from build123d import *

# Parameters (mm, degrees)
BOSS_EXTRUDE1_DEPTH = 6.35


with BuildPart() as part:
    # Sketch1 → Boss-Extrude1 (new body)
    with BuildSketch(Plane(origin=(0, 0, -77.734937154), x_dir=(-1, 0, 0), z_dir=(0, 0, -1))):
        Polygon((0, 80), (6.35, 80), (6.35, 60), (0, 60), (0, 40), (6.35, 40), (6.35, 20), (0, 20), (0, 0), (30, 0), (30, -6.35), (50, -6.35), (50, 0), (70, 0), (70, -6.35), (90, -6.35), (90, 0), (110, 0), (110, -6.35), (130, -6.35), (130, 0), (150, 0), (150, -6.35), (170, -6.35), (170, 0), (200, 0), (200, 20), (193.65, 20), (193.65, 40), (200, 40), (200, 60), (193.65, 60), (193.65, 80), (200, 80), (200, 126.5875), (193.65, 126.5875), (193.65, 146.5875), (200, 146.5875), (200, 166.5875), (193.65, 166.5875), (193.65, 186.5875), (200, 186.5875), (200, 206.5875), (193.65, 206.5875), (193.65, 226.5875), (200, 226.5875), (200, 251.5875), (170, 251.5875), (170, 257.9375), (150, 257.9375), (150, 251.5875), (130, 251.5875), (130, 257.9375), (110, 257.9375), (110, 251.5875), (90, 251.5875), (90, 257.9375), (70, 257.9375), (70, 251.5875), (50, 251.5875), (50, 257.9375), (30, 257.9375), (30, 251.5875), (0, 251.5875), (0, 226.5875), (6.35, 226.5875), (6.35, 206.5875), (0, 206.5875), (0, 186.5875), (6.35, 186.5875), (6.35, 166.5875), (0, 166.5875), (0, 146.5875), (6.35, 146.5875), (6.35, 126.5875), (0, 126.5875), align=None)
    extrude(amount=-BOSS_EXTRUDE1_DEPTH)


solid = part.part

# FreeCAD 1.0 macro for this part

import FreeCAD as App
import Part
import Sketcher

V = App.Vector
Q = App.Units.Quantity

doc = App.newDocument("Part")
body = doc.addObject("PartDesign::Body", "Body")

sketch1 = body.newObject("Sketcher::SketchObject", "Sketch")
sketch1.AttachmentSupport = (doc.getObject("XY_Plane"), [""])
sketch1.MapMode = "FlatFace"
sketch1.AttachmentOffset = App.Placement(V(0, 0, -77.734937), App.Rotation())
sketch1.addGeometry([
    Part.LineSegment(V(0, 80, 0), V(-6, 80, 0)),
    Part.LineSegment(V(-6, 80, 0), V(-6, 60, 0)),
    Part.LineSegment(V(-6, 60, 0), V(0, 60, 0)),
    Part.LineSegment(V(0, 60, 0), V(0, 40, 0)),
    Part.LineSegment(V(0, 40, 0), V(-6, 40, 0)),
    Part.LineSegment(V(-6, 40, 0), V(-6, 20, 0)),
    Part.LineSegment(V(-6, 20, 0), V(0, 20, 0)),
    Part.LineSegment(V(0, 20, 0), V(0, 0, 0)),
    Part.LineSegment(V(0, 0, 0), V(-30, 0, 0)),
    Part.LineSegment(V(-30, 0, 0), V(-30, -6, 0)),
    Part.LineSegment(V(-30, -6, 0), V(-50, -6, 0)),
    Part.LineSegment(V(-50, -6, 0), V(-50, 0, 0)),
    Part.LineSegment(V(-50, 0, 0), V(-70, 0, 0)),
    Part.LineSegment(V(-70, 0, 0), V(-70, -6, 0)),
    Part.LineSegment(V(-70, -6, 0), V(-90, -6, 0)),
    Part.LineSegment(V(-90, -6, 0), V(-90, 0, 0)),
    Part.LineSegment(V(-90, 0, 0), V(-110, 0, 0)),
    Part.LineSegment(V(-110, 0, 0), V(-110, -6, 0)),
    Part.LineSegment(V(-110, -6, 0), V(-130, -6, 0)),
    Part.LineSegment(V(-130, -6, 0), V(-130, 0, 0)),
    Part.LineSegment(V(-130, 0, 0), V(-150, 0, 0)),
    Part.LineSegment(V(-150, 0, 0), V(-150, -6, 0)),
    Part.LineSegment(V(-150, -6, 0), V(-170, -6, 0)),
    Part.LineSegment(V(-170, -6, 0), V(-170, 0, 0)),
    Part.LineSegment(V(-170, 0, 0), V(-200, 0, 0)),
    Part.LineSegment(V(-200, 0, 0), V(-200, 20, 0)),
    Part.LineSegment(V(-200, 20, 0), V(-194, 20, 0)),
    Part.LineSegment(V(-194, 20, 0), V(-194, 40, 0)),
    Part.LineSegment(V(-194, 40, 0), V(-200, 40, 0)),
    Part.LineSegment(V(-200, 40, 0), V(-200, 60, 0)),
    Part.LineSegment(V(-200, 60, 0), V(-194, 60, 0)),
    Part.LineSegment(V(-194, 60, 0), V(-194, 80, 0)),
    Part.LineSegment(V(-194, 80, 0), V(-200, 80, 0)),
    Part.LineSegment(V(-200, 80, 0), V(-200, 127, 0)),
    Part.LineSegment(V(-200, 127, 0), V(-194, 127, 0)),
    Part.LineSegment(V(-194, 127, 0), V(-194, 147, 0)),
    Part.LineSegment(V(-194, 147, 0), V(-200, 147, 0)),
    Part.LineSegment(V(-200, 147, 0), V(-200, 167, 0)),
    Part.LineSegment(V(-200, 167, 0), V(-194, 167, 0)),
    Part.LineSegment(V(-194, 167, 0), V(-194, 187, 0)),
    Part.LineSegment(V(-194, 187, 0), V(-200, 187, 0)),
    Part.LineSegment(V(-200, 187, 0), V(-200, 207, 0)),
    Part.LineSegment(V(-200, 207, 0), V(-194, 207, 0)),
    Part.LineSegment(V(-194, 207, 0), V(-194, 227, 0)),
    Part.LineSegment(V(-194, 227, 0), V(-200, 227, 0)),
    Part.LineSegment(V(-200, 227, 0), V(-200, 252, 0)),
    Part.LineSegment(V(-200, 252, 0), V(-170, 252, 0)),
    Part.LineSegment(V(-170, 252, 0), V(-170, 258, 0)),
    Part.LineSegment(V(-170, 258, 0), V(-150, 258, 0)),
    Part.LineSegment(V(-150, 258, 0), V(-150, 252, 0)),
    Part.LineSegment(V(-150, 252, 0), V(-130, 252, 0)),
    Part.LineSegment(V(-130, 252, 0), V(-130, 258, 0)),
    Part.LineSegment(V(-130, 258, 0), V(-110, 258, 0)),
    Part.LineSegment(V(-110, 258, 0), V(-110, 252, 0)),
    Part.LineSegment(V(-110, 252, 0), V(-90, 252, 0)),
    Part.LineSegment(V(-90, 252, 0), V(-90, 258, 0)),
    Part.LineSegment(V(-90, 258, 0), V(-70, 258, 0)),
    Part.LineSegment(V(-70, 258, 0), V(-70, 252, 0)),
    Part.LineSegment(V(-70, 252, 0), V(-50, 252, 0)),
    Part.LineSegment(V(-50, 252, 0), V(-50, 258, 0)),
    Part.LineSegment(V(-50, 258, 0), V(-30, 258, 0)),
    Part.LineSegment(V(-30, 258, 0), V(-30, 252, 0)),
    Part.LineSegment(V(-30, 252, 0), V(0, 252, 0)),
    Part.LineSegment(V(0, 252, 0), V(0, 227, 0)),
    Part.LineSegment(V(0, 227, 0), V(-6, 227, 0)),
    Part.LineSegment(V(-6, 227, 0), V(-6, 207, 0)),
    Part.LineSegment(V(-6, 207, 0), V(0, 207, 0)),
    Part.LineSegment(V(0, 207, 0), V(0, 187, 0)),
    Part.LineSegment(V(0, 187, 0), V(-6, 187, 0)),
    Part.LineSegment(V(-6, 187, 0), V(-6, 167, 0)),
    Part.LineSegment(V(-6, 167, 0), V(0, 167, 0)),
    Part.LineSegment(V(0, 167, 0), V(0, 147, 0)),
    Part.LineSegment(V(0, 147, 0), V(-6, 147, 0)),
    Part.LineSegment(V(-6, 147, 0), V(-6, 127, 0)),
    Part.LineSegment(V(-6, 127, 0), V(0, 127, 0)),
    Part.LineSegment(V(0, 127, 0), V(0, 80, 0)),
], False)
sketch1.addConstraint([
    Sketcher.Constraint("Coincident", 0, 2, 1, 1),
    Sketcher.Constraint("Coincident", 1, 2, 2, 1),
    Sketcher.Constraint("Coincident", 2, 2, 3, 1),
    Sketcher.Constraint("Coincident", 3, 2, 4, 1),
    Sketcher.Constraint("Coincident", 4, 2, 5, 1),
    Sketcher.Constraint("Coincident", 5, 2, 6, 1),
    Sketcher.Constraint("Coincident", 6, 2, 7, 1),
    Sketcher.Constraint("Coincident", 7, 2, 8, 1),
    Sketcher.Constraint("Coincident", 8, 2, 9, 1),
    Sketcher.Constraint("Coincident", 9, 2, 10, 1),
    Sketcher.Constraint("Coincident", 10, 2, 11, 1),
    Sketcher.Constraint("Coincident", 11, 2, 12, 1),
    Sketcher.Constraint("Coincident", 12, 2, 13, 1),
    Sketcher.Constraint("Coincident", 13, 2, 14, 1),
    Sketcher.Constraint("Coincident", 14, 2, 15, 1),
    Sketcher.Constraint("Coincident", 15, 2, 16, 1),
    Sketcher.Constraint("Coincident", 16, 2, 17, 1),
    Sketcher.Constraint("Coincident", 17, 2, 18, 1),
    Sketcher.Constraint("Coincident", 18, 2, 19, 1),
    Sketcher.Constraint("Coincident", 19, 2, 20, 1),
    Sketcher.Constraint("Coincident", 20, 2, 21, 1),
    Sketcher.Constraint("Coincident", 21, 2, 22, 1),
    Sketcher.Constraint("Coincident", 22, 2, 23, 1),
    Sketcher.Constraint("Coincident", 23, 2, 24, 1),
    Sketcher.Constraint("Coincident", 24, 2, 25, 1),
    Sketcher.Constraint("Coincident", 25, 2, 26, 1),
    Sketcher.Constraint("Coincident", 26, 2, 27, 1),
    Sketcher.Constraint("Coincident", 27, 2, 28, 1),
    Sketcher.Constraint("Coincident", 28, 2, 29, 1),
    Sketcher.Constraint("Coincident", 29, 2, 30, 1),
    Sketcher.Constraint("Coincident", 30, 2, 31, 1),
    Sketcher.Constraint("Coincident", 31, 2, 32, 1),
    Sketcher.Constraint("Coincident", 32, 2, 33, 1),
    Sketcher.Constraint("Coincident", 33, 2, 34, 1),
    Sketcher.Constraint("Coincident", 34, 2, 35, 1),
    Sketcher.Constraint("Coincident", 35, 2, 36, 1),
    Sketcher.Constraint("Coincident", 36, 2, 37, 1),
    Sketcher.Constraint("Coincident", 37, 2, 38, 1),
    Sketcher.Constraint("Coincident", 38, 2, 39, 1),
    Sketcher.Constraint("Coincident", 39, 2, 40, 1),
    Sketcher.Constraint("Coincident", 40, 2, 41, 1),
    Sketcher.Constraint("Coincident", 41, 2, 42, 1),
    Sketcher.Constraint("Coincident", 42, 2, 43, 1),
    Sketcher.Constraint("Coincident", 43, 2, 44, 1),
    Sketcher.Constraint("Coincident", 44, 2, 45, 1),
    Sketcher.Constraint("Coincident", 45, 2, 46, 1),
    Sketcher.Constraint("Coincident", 46, 2, 47, 1),
    Sketcher.Constraint("Coincident", 47, 2, 48, 1),
    Sketcher.Constraint("Coincident", 48, 2, 49, 1),
    Sketcher.Constraint("Coincident", 49, 2, 50, 1),
    Sketcher.Constraint("Coincident", 50, 2, 51, 1),
    Sketcher.Constraint("Coincident", 51, 2, 52, 1),
    Sketcher.Constraint("Coincident", 52, 2, 53, 1),
    Sketcher.Constraint("Coincident", 53, 2, 54, 1),
    Sketcher.Constraint("Coincident", 54, 2, 55, 1),
    Sketcher.Constraint("Coincident", 55, 2, 56, 1),
    Sketcher.Constraint("Coincident", 56, 2, 57, 1),
    Sketcher.Constraint("Coincident", 57, 2, 58, 1),
    Sketcher.Constraint("Coincident", 58, 2, 59, 1),
    Sketcher.Constraint("Coincident", 59, 2, 60, 1),
    Sketcher.Constraint("Coincident", 60, 2, 61, 1),
    Sketcher.Constraint("Coincident", 61, 2, 62, 1),
    Sketcher.Constraint("Coincident", 62, 2, 63, 1),
    Sketcher.Constraint("Coincident", 63, 2, 64, 1),
    Sketcher.Constraint("Coincident", 64, 2, 65, 1),
    Sketcher.Constraint("Coincident", 65, 2, 66, 1),
    Sketcher.Constraint("Coincident", 66, 2, 67, 1),
    Sketcher.Constraint("Coincident", 67, 2, 68, 1),
    Sketcher.Constraint("Coincident", 68, 2, 69, 1),
    Sketcher.Constraint("Coincident", 69, 2, 70, 1),
    Sketcher.Constraint("Coincident", 70, 2, 71, 1),
    Sketcher.Constraint("Coincident", 71, 2, 72, 1),
    Sketcher.Constraint("Coincident", 72, 2, 73, 1),
    Sketcher.Constraint("Coincident", 73, 2, 74, 1),
    Sketcher.Constraint("Coincident", 74, 2, 75, 1),
    Sketcher.Constraint("Coincident", 75, 2, 0, 1),
    Sketcher.Constraint("Horizontal", 0),
    Sketcher.Constraint("Vertical", 1),
    Sketcher.Constraint("Horizontal", 2),
    Sketcher.Constraint("Vertical", 3),
    Sketcher.Constraint("Horizontal", 4),
    Sketcher.Constraint("Vertical", 5),
    Sketcher.Constraint("Horizontal", 6),
    Sketcher.Constraint("Vertical", 7),
    Sketcher.Constraint("Horizontal", 8),
    Sketcher.Constraint("Vertical", 9),
    Sketcher.Constraint("Horizontal", 10),
    Sketcher.Constraint("Vertical", 11),
    Sketcher.Constraint("Horizontal", 12),
    Sketcher.Constraint("Vertical", 13),
    Sketcher.Constraint("Horizontal", 14),
    Sketcher.Constraint("Vertical", 15),
    Sketcher.Constraint("Horizontal", 16),
    Sketcher.Constraint("Vertical", 17),
    Sketcher.Constraint("Horizontal", 18),
    Sketcher.Constraint("Vertical", 19),
    Sketcher.Constraint("Horizontal", 20),
    Sketcher.Constraint("Vertical", 21),
    Sketcher.Constraint("Horizontal", 22),
    Sketcher.Constraint("Vertical", 23),
    Sketcher.Constraint("Horizontal", 24),
    Sketcher.Constraint("Vertical", 25),
    Sketcher.Constraint("Horizontal", 26),
    Sketcher.Constraint("Vertical", 27),
    Sketcher.Constraint("Horizontal", 28),
    Sketcher.Constraint("Vertical", 29),
    Sketcher.Constraint("Horizontal", 30),
    Sketcher.Constraint("Vertical", 31),
    Sketcher.Constraint("Horizontal", 32),
    Sketcher.Constraint("Vertical", 33),
    Sketcher.Constraint("Horizontal", 34),
    Sketcher.Constraint("Vertical", 35),
    Sketcher.Constraint("Horizontal", 36),
    Sketcher.Constraint("Vertical", 37),
    Sketcher.Constraint("Horizontal", 38),
    Sketcher.Constraint("Vertical", 39),
    Sketcher.Constraint("Horizontal", 40),
    Sketcher.Constraint("Vertical", 41),
    Sketcher.Constraint("Horizontal", 42),
    Sketcher.Constraint("Vertical", 43),
    Sketcher.Constraint("Horizontal", 44),
    Sketcher.Constraint("Vertical", 45),
    Sketcher.Constraint("Horizontal", 46),
    Sketcher.Constraint("Vertical", 47),
    Sketcher.Constraint("Horizontal", 48),
    Sketcher.Constraint("Vertical", 49),
    Sketcher.Constraint("Horizontal", 50),
    Sketcher.Constraint("Vertical", 51),
    Sketcher.Constraint("Horizontal", 52),
    Sketcher.Constraint("Vertical", 53),
    Sketcher.Constraint("Horizontal", 54),
    Sketcher.Constraint("Vertical", 55),
    Sketcher.Constraint("Horizontal", 56),
    Sketcher.Constraint("Vertical", 57),
    Sketcher.Constraint("Horizontal", 58),
    Sketcher.Constraint("Vertical", 59),
    Sketcher.Constraint("Horizontal", 60),
    Sketcher.Constraint("Vertical", 61),
    Sketcher.Constraint("Horizontal", 62),
    Sketcher.Constraint("Vertical", 63),
    Sketcher.Constraint("Horizontal", 64),
    Sketcher.Constraint("Vertical", 65),
    Sketcher.Constraint("Horizontal", 66),
    Sketcher.Constraint("Vertical", 67),
    Sketcher.Constraint("Horizontal", 68),
    Sketcher.Constraint("Vertical", 69),
    Sketcher.Constraint("Horizontal", 70),
    Sketcher.Constraint("Vertical", 71),
    Sketcher.Constraint("Horizontal", 72),
    Sketcher.Constraint("Vertical", 73),
    Sketcher.Constraint("Horizontal", 74),
    Sketcher.Constraint("Vertical", 75),
    Sketcher.Constraint("Coincident", 7, 2, -1, 1),
    Sketcher.Constraint("PointOnObject", 2, 2, -2),
    Sketcher.Constraint("PointOnObject", 11, 2, -1),
    Sketcher.Constraint("PointOnObject", 15, 2, -1),
    Sketcher.Constraint("PointOnObject", 19, 2, -1),
    Sketcher.Constraint("PointOnObject", 23, 2, -1),
    Sketcher.Constraint("PointOnObject", 62, 2, -2),
    Sketcher.Constraint("PointOnObject", 66, 2, -2),
    Sketcher.Constraint("PointOnObject", 70, 2, -2),
    Sketcher.Constraint("PointOnObject", 74, 2, -2),
    Sketcher.Constraint("Horizontal", 10, 2, 13, 2),
    Sketcher.Constraint("Horizontal", 14, 2, 17, 2),
    Sketcher.Constraint("Horizontal", 18, 2, 21, 2),
    Sketcher.Constraint("Horizontal", 6, 2, 25, 2),
    Sketcher.Constraint("Horizontal", 4, 2, 27, 2),
    Sketcher.Constraint("Horizontal", 2, 2, 29, 2),
    Sketcher.Constraint("Horizontal", 0, 2, 31, 2),
    Sketcher.Constraint("Horizontal", 46, 2, 49, 2),
    Sketcher.Constraint("Horizontal", 48, 2, 51, 2),
    Sketcher.Constraint("Horizontal", 50, 2, 53, 2),
    Sketcher.Constraint("Horizontal", 52, 2, 55, 2),
    Sketcher.Constraint("Horizontal", 54, 2, 57, 2),
    Sketcher.Constraint("Horizontal", 56, 2, 59, 2),
    Sketcher.Constraint("Horizontal", 58, 2, 61, 2),
    Sketcher.Constraint("Horizontal", 44, 2, 63, 2),
    Sketcher.Constraint("Horizontal", 42, 2, 65, 2),
    Sketcher.Constraint("Horizontal", 40, 2, 67, 2),
    Sketcher.Constraint("Horizontal", 38, 2, 69, 2),
    Sketcher.Constraint("Horizontal", 36, 2, 71, 2),
    Sketcher.Constraint("Horizontal", 34, 2, 73, 2),
    Sketcher.Constraint("Vertical", 1, 2, 4, 2),
    Sketcher.Constraint("Vertical", 25, 2, 28, 2),
    Sketcher.Constraint("Vertical", 27, 2, 30, 2),
    Sketcher.Constraint("Vertical", 29, 2, 32, 2),
    Sketcher.Constraint("Vertical", 31, 2, 34, 2),
    Sketcher.Constraint("Vertical", 33, 2, 36, 2),
    Sketcher.Constraint("Vertical", 35, 2, 38, 2),
    Sketcher.Constraint("Vertical", 37, 2, 40, 2),
    Sketcher.Constraint("Vertical", 39, 2, 42, 2),
    Sketcher.Constraint("Vertical", 41, 2, 44, 2),
    Sketcher.Constraint("Vertical", 23, 2, 46, 2),
    Sketcher.Constraint("Vertical", 21, 2, 48, 2),
    Sketcher.Constraint("Vertical", 19, 2, 50, 2),
    Sketcher.Constraint("Vertical", 17, 2, 52, 2),
    Sketcher.Constraint("Vertical", 15, 2, 54, 2),
    Sketcher.Constraint("Vertical", 13, 2, 56, 2),
    Sketcher.Constraint("Vertical", 11, 2, 58, 2),
    Sketcher.Constraint("Vertical", 9, 2, 60, 2),
    Sketcher.Constraint("Vertical", 5, 2, 64, 2),
    Sketcher.Constraint("Vertical", 65, 2, 68, 2),
    Sketcher.Constraint("Vertical", 69, 2, 72, 2),
    Sketcher.Constraint("Equal", 10, 12),
    Sketcher.Constraint("Equal", 12, 14),
    Sketcher.Constraint("Equal", 14, 16),
    Sketcher.Constraint("Equal", 16, 18),
    Sketcher.Constraint("Equal", 18, 20),
    Sketcher.Constraint("Equal", 20, 22),
    Sketcher.Constraint("Equal", 8, 24),
    Sketcher.Constraint("Equal", 6, 26),
    Sketcher.Constraint("Equal", 60, 1),
    Sketcher.Constraint("Equal", 1, 3),
    Sketcher.Constraint("Equal", 3, 5),
    Sketcher.Constraint("Equal", 5, 7),
    Sketcher.Constraint("Equal", 74, 9),
    Sketcher.Constraint("Equal", 31, 35),
    Sketcher.Constraint("Equal", 35, 37),
    Sketcher.Constraint("Equal", 37, 39),
    Sketcher.Constraint("Equal", 39, 41),
    Sketcher.Constraint("Equal", 41, 43),
    Sketcher.Constraint("Equal", 23, 47),
    Sketcher.Constraint("DistanceX", 8, 2, 8, 1, Q("30 mm")),
    Sketcher.Constraint("DistanceX", 10, 2, 10, 1, Q("20 mm")),
    Sketcher.Constraint("DistanceY", 45, 1, 45, 2, Q("25 mm")),
    Sketcher.Constraint("DistanceX", 0, 2, 0, 1, Q("6.35 mm")),
    Sketcher.Constraint("DistanceY", 33, 1, 33, 2, Q("46.5875 mm")),
])
pad1 = body.newObject("PartDesign::Pad", "Pad")
pad1.Profile = sketch1
pad1.Length = 6.35

doc.recompute()
